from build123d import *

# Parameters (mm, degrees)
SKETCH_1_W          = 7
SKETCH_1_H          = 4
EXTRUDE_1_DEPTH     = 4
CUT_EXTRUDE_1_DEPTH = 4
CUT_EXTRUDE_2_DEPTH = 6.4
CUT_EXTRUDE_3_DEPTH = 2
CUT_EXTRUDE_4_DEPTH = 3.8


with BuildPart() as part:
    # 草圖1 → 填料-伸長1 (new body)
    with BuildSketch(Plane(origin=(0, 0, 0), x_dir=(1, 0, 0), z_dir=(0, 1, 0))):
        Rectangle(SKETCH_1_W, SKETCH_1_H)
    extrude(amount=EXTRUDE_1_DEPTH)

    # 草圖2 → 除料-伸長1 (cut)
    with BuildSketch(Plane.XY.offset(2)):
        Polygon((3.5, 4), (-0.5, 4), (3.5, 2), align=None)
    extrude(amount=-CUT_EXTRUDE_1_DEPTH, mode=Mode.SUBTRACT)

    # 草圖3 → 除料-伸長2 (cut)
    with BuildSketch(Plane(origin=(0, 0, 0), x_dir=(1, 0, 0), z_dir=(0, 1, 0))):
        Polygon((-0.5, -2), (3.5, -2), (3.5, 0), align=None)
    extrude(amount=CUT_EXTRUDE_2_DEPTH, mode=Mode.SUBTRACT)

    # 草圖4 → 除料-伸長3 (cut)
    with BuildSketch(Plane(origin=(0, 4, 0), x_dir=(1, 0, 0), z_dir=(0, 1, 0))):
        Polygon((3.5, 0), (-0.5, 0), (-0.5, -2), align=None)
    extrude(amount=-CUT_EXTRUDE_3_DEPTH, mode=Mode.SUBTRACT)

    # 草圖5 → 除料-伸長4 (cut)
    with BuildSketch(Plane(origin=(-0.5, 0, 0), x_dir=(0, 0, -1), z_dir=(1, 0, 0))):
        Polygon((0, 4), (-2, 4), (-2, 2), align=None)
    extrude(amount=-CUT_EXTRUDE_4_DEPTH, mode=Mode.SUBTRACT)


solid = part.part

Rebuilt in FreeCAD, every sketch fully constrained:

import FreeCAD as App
import Part
import Sketcher


def add_polygon(sketch, points):
    """Adds a closed chain of lines whose ends are joined by coincident constraints."""
    first, n = sketch.GeometryCount, len(points)
    for a, b in zip(points, points[1:] + points[:1]):
        sketch.addGeometry(Part.LineSegment(App.Vector(*a, 0), App.Vector(*b, 0)), False)
    for i in range(n):
        sketch.addConstraint(Sketcher.Constraint("Coincident", first + i, 2, first + (i + 1) % n, 1))

doc = App.newDocument("Part")
params = doc.addObject("Spreadsheet::Sheet", "Params")
for row, (alias, value) in enumerate([
    ("sketch1_width", "7 mm"),
    ("sketch1_height", "4 mm"),
    ("pad1_length", "4 mm"),
    ("sketch2_width", "4 mm"),
    ("sketch2_height", "2 mm"),
    ("pocket1_length", "4 mm"),
    ("sketch3_width", "4 mm"),
    ("sketch3_height", "2 mm"),
    ("pocket2_length", "6.4 mm"),
    ("sketch4_width", "4 mm"),
    ("sketch4_height", "2 mm"),
    ("pocket3_length", "2 mm"),
    ("sketch5_width", "2 mm"),
    ("pocket4_length", "3.8 mm"),
], start=1):
    params.set(f"A{row}", alias)
    params.set(f"B{row}", "=" + value)
    params.setAlias(f"B{row}", alias)

body = doc.addObject("PartDesign::Body", "Body")

# Sketch on XZ plane
sketch1 = doc.addObject("Sketcher::SketchObject", "Sketch")
body.addObject(sketch1)
sketch1.AttachmentSupport = (doc.XZ_Plane, [""])
sketch1.MapMode = "FlatFace"
add_polygon(sketch1, [(-3.5, -2), (-3.5, 2), (3.5, 2), (3.5, -2)])  # lines 0-3
sketch1.addConstraint([
    Sketcher.Constraint("Vertical", 0),
    Sketcher.Constraint("Horizontal", 1),
    Sketcher.Constraint("Vertical", 2),
    Sketcher.Constraint("Horizontal", 3),
    Sketcher.Constraint("Symmetric", 0, 2, 2, 2, -1, 1),
    Sketcher.Constraint("DistanceX", 1, 1, 1, 2, 7.0),
    Sketcher.Constraint("DistanceY", 0, 1, 0, 2, 4.0),
])
sketch1.setExpression("Constraints[9]", "Params.sketch1_width")
sketch1.setExpression("Constraints[10]", "Params.sketch1_height")
pad1 = doc.addObject("PartDesign::Pad", "Pad")
body.addObject(pad1)
pad1.Profile = sketch1
pad1.setExpression("Length", "Params.pad1_length")
pad1.Reversed = True

# Sketch on XY plane
sketch2 = doc.addObject("Sketcher::SketchObject", "Sketch001")
body.addObject(sketch2)
sketch2.AttachmentSupport = (doc.XY_Plane, [""])
sketch2.MapMode = "FlatFace"
sketch2.AttachmentOffset = App.Placement(App.Vector(0, 0, 2), App.Rotation())
add_polygon(sketch2, [(3.5, 4), (-0.5, 4), (3.5, 2)])  # lines 0-2
sketch2.addConstraint([
    Sketcher.Constraint("Horizontal", 0),
    Sketcher.Constraint("Vertical", 2),
    Sketcher.Constraint("DistanceX", 0, 2, 0, 1, 4.0),
    Sketcher.Constraint("DistanceY", 2, 1, 2, 2, 2.0),
    Sketcher.Constraint("DistanceY", -1, 1, 0, 2, 4.0),
    Sketcher.Constraint("DistanceX", 0, 2, -1, 1, 0.5),
])
sketch2.setExpression("Constraints[5]", "Params.sketch2_width")
sketch2.setExpression("Constraints[6]", "Params.sketch2_height")
pocket1 = doc.addObject("PartDesign::Pocket", "Pocket")
body.addObject(pocket1)
pocket1.Profile = sketch2
pocket1.setExpression("Length", "Params.pocket1_length")

# Sketch on XZ plane
sketch3 = doc.addObject("Sketcher::SketchObject", "Sketch002")
body.addObject(sketch3)
sketch3.AttachmentSupport = (doc.XZ_Plane, [""])
sketch3.MapMode = "FlatFace"
add_polygon(sketch3, [(-0.5, 2), (3.5, 2), (3.5, 0)])  # lines 0-2
sketch3.addConstraint([
    Sketcher.Constraint("Horizontal", 0),
    Sketcher.Constraint("Vertical", 1),
    Sketcher.Constraint("PointOnObject", 1, 2, -1),
    Sketcher.Constraint("DistanceX", 0, 1, 0, 2, 4.0),
    Sketcher.Constraint("DistanceY", 1, 2, 1, 1, 2.0),
    Sketcher.Constraint("DistanceX", -1, 1, 0, 2, 3.5),
])
sketch3.setExpression("Constraints[6]", "Params.sketch3_width")
sketch3.setExpression("Constraints[7]", "Params.sketch3_height")
pocket2 = doc.addObject("PartDesign::Pocket", "Pocket001")
body.addObject(pocket2)
pocket2.Profile = sketch3
pocket2.setExpression("Length", "Params.pocket2_length")

# Sketch on XZ plane
sketch4 = doc.addObject("Sketcher::SketchObject", "Sketch003")
body.addObject(sketch4)
sketch4.AttachmentSupport = (doc.XZ_Plane, [""])
sketch4.MapMode = "FlatFace"
sketch4.AttachmentOffset = App.Placement(App.Vector(0, 0, -4), App.Rotation())
add_polygon(sketch4, [(3.5, 0), (-0.5, 0), (-0.5, 2)])  # lines 0-2
sketch4.addConstraint([
    Sketcher.Constraint("Horizontal", 0),
    Sketcher.Constraint("Vertical", 1),
    Sketcher.Constraint("PointOnObject", 0, 2, -1),
    Sketcher.Constraint("DistanceX", 0, 2, 0, 1, 4.0),
    Sketcher.Constraint("DistanceY", 1, 1, 1, 2, 2.0),
    Sketcher.Constraint("DistanceX", 0, 2, -1, 1, 0.5),
])
sketch4.setExpression("Constraints[6]", "Params.sketch4_width")
sketch4.setExpression("Constraints[7]", "Params.sketch4_height")
pocket3 = doc.addObject("PartDesign::Pocket", "Pocket002")
body.addObject(pocket3)
pocket3.Profile = sketch4
pocket3.setExpression("Length", "Params.pocket3_length")
pocket3.Reversed = True

# Sketch on YZ plane
sketch5 = doc.addObject("Sketcher::SketchObject", "Sketch004")
body.addObject(sketch5)
sketch5.AttachmentSupport = (doc.YZ_Plane, [""])
sketch5.MapMode = "FlatFace"
sketch5.AttachmentOffset = App.Placement(App.Vector(0, 0, -0.5), App.Rotation())
add_polygon(sketch5, [(4, 0), (4, 2), (2, 2)])  # lines 0-2
sketch5.addConstraint([
    Sketcher.Constraint("Vertical", 0),
    Sketcher.Constraint("Horizontal", 1),
    Sketcher.Constraint("PointOnObject", 2, 2, -1),
    Sketcher.Constraint("Equal", 1, 0),
    Sketcher.Constraint("DistanceX", 1, 2, 1, 1, 2.0),
    Sketcher.Constraint("DistanceX", -1, 1, 0, 2, 4.0),
])
sketch5.setExpression("Constraints[7]", "Params.sketch5_width")
pocket4 = doc.addObject("PartDesign::Pocket", "Pocket003")
body.addObject(pocket4)
pocket4.Profile = sketch5
pocket4.setExpression("Length", "Params.pocket4_length")

doc.recompute()
